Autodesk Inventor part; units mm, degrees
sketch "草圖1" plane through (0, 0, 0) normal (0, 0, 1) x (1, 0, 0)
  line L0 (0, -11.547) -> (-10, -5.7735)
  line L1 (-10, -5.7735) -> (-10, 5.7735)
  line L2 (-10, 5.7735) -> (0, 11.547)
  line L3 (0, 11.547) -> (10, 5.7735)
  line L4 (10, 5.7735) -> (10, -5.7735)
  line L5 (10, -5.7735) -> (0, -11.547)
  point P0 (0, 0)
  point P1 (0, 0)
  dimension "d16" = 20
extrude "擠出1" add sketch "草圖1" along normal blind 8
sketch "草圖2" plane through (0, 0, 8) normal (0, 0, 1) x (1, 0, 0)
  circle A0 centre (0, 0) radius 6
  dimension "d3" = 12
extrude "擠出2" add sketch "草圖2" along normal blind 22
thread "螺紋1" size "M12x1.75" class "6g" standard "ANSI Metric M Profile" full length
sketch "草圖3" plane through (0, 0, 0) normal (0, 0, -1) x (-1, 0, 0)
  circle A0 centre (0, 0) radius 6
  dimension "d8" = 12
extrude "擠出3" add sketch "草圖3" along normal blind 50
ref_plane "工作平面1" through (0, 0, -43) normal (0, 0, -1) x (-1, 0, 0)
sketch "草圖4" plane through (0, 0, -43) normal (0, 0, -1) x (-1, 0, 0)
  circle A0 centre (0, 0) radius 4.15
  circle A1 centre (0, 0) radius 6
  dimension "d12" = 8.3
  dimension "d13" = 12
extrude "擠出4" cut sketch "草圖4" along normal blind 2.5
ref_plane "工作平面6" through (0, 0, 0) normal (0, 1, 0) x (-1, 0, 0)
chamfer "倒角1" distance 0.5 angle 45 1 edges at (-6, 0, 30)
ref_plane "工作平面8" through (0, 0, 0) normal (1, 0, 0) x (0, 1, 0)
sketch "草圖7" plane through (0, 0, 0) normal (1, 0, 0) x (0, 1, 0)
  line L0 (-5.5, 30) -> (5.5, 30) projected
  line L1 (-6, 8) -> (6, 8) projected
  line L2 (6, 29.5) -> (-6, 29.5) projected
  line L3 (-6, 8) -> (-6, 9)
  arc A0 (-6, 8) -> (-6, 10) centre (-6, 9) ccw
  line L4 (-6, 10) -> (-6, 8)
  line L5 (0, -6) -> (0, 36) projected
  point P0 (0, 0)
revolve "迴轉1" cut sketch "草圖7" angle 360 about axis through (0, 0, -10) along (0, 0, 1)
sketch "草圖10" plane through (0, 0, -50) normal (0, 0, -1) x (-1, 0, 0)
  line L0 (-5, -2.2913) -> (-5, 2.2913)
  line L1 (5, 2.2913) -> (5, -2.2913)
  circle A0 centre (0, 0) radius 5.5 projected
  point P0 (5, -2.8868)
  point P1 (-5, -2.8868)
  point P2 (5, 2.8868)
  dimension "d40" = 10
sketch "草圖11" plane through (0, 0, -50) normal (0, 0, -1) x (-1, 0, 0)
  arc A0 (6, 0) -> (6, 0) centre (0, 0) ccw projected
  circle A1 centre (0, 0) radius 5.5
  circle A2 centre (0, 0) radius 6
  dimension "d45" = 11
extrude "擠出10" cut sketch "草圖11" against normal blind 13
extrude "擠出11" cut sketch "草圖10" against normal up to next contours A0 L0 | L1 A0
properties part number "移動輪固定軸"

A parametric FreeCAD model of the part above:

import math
import FreeCAD as App
import Part
import Sketcher
Q = App.Units.Quantity


def edges_at(feature, points):
    """Names of the edges that pass closest to the given points."""
    edges = feature.Shape.Edges
    near = lambda p: min(range(len(edges)), key=lambda i: edges[i].distToShape(Part.Vertex(*p))[0])
    return sorted({f"Edge{near(p) + 1}" for p in points})

doc = App.newDocument("Part")
params = doc.addObject("Spreadsheet::Sheet", "Params")
for row, (alias, value) in enumerate([
    ("pad1_length", "8 mm"),
    ("sketch2_diameter", "12 mm"),
    ("pad2_length", "22 mm"),
    ("sketch3_diameter", "12 mm"),
    ("pad3_length", "50 mm"),
    ("sketch4_diameter", "12 mm"),
    ("sketch4_diameter2", "8.3 mm"),
    ("pocket1_length", "2.5 mm"),
    ("chamfer_size", "0.5 mm"),
    ("sketch5_radius", "1 mm"),
    ("groove_angle", "360 deg"),
    ("sketch6_diameter", "11 mm"),
    ("sketch6_diameter2", "12 mm"),
    ("pocket2_length", "13 mm"),
    ("sketch7_radius", "5.5 mm"),
    ("pocket3_length", "4.5 mm"),
], start=1):
    params.set(f"A{row}", alias)
    params.set(f"B{row}", "=" + value)
    params.setAlias(f"B{row}", alias)

body = doc.addObject("PartDesign::Body", "Body")

# Sketch on XY plane
sketch1 = body.newObject("Sketcher::SketchObject", "Sketch")
sketch1.AttachmentSupport = (doc.getObject("XY_Plane"), [""])
sketch1.MapMode = "FlatFace"
sketch1.addGeometry([
    Part.LineSegment(App.Vector(-10, -5.7735, 0), App.Vector(0, -11.547, 0)),  # 0
    Part.LineSegment(App.Vector(0, -11.547, 0), App.Vector(10, -5.7735, 0)),  # 1
    Part.LineSegment(App.Vector(10, -5.7735, 0), App.Vector(10, 5.7735, 0)),  # 2
    Part.LineSegment(App.Vector(10, 5.7735, 0), App.Vector(0, 11.547, 0)),  # 3
    Part.LineSegment(App.Vector(0, 11.547, 0), App.Vector(-10, 5.7735, 0)),  # 4
    Part.LineSegment(App.Vector(-10, 5.7735, 0), App.Vector(-10, -5.7735, 0)),  # 5
], False)
sketch1.addConstraint([
    Sketcher.Constraint("Coincident", 0, 2, 1, 1),
    Sketcher.Constraint("Coincident", 1, 2, 2, 1),
    Sketcher.Constraint("Coincident", 2, 2, 3, 1),
    Sketcher.Constraint("Coincident", 3, 2, 4, 1),
    Sketcher.Constraint("Coincident", 4, 2, 5, 1),
    Sketcher.Constraint("Coincident", 5, 2, 0, 1),
    Sketcher.Constraint("Vertical", 2),
    Sketcher.Constraint("Vertical", 5),
    Sketcher.Constraint("Symmetric", 0, 2, 3, 2, -1, 1),
    Sketcher.Constraint("Symmetric", 1, 2, 4, 2, -1, 1),
    Sketcher.Constraint("PointOnObject", 0, 2, -2),
    Sketcher.Constraint("Parallel", 0, 3),
    Sketcher.Constraint("Horizontal", 2, 2, 4, 2),
    Sketcher.Constraint("DistanceX", 4, 2, 2, 2, 20.0),
    Sketcher.Constraint("Angle", 0, Q("-30 deg")),
    Sketcher.Constraint("DistanceY", 2, 1, 2, 2, 11.547),
])
pad1 = body.newObject("PartDesign::Pad", "Pad")
pad1.Profile = sketch1
pad1.setExpression("Length", "Params.pad1_length")

# Sketch on XY plane
sketch2 = body.newObject("Sketcher::SketchObject", "Sketch001")
sketch2.AttachmentSupport = (doc.getObject("XY_Plane"), [""])
sketch2.MapMode = "FlatFace"
sketch2.AttachmentOffset = App.Placement(App.Vector(0, 0, 8), App.Rotation())
sketch2.addGeometry(Part.Circle(App.Vector(0, 0, 0), App.Vector(0, 0, 1), 6), False)
sketch2.addConstraint([
    Sketcher.Constraint("Coincident", 0, 3, -1, 1),
    Sketcher.Constraint("Diameter", 0, 12.0),
])
sketch2.setExpression("Constraints[1]", "Params.sketch2_diameter")
pad2 = body.newObject("PartDesign::Pad", "Pad001")
pad2.Profile = sketch2
pad2.setExpression("Length", "Params.pad2_length")

# Sketch on XY plane
sketch3 = body.newObject("Sketcher::SketchObject", "Sketch002")
sketch3.AttachmentSupport = (doc.getObject("XY_Plane"), [""])
sketch3.MapMode = "FlatFace"
sketch3.addGeometry(Part.Circle(App.Vector(0, 0, 0), App.Vector(0, 0, 1), 6), False)
sketch3.addConstraint([
    Sketcher.Constraint("Coincident", 0, 3, -1, 1),
    Sketcher.Constraint("Diameter", 0, 12.0),
])
sketch3.setExpression("Constraints[1]", "Params.sketch3_diameter")
pad3 = body.newObject("PartDesign::Pad", "Pad002")
pad3.Profile = sketch3
pad3.setExpression("Length", "Params.pad3_length")
pad3.Reversed = True

# Sketch on XY plane
sketch4 = body.newObject("Sketcher::SketchObject", "Sketch003")
sketch4.AttachmentSupport = (doc.getObject("XY_Plane"), [""])
sketch4.MapMode = "FlatFace"
sketch4.AttachmentOffset = App.Placement(App.Vector(0, 0, -43), App.Rotation())
sketch4.addGeometry([
    Part.Circle(App.Vector(0, 0, 0), App.Vector(0, 0, 1), 6),
    Part.Circle(App.Vector(0, 0, 0), App.Vector(0, 0, 1), 4.15),
], False)
sketch4.addConstraint([
    Sketcher.Constraint("Coincident", 0, 3, -1, 1),
    Sketcher.Constraint("Coincident", 1, 3, -1, 1),
    Sketcher.Constraint("Diameter", 0, 12.0),
    Sketcher.Constraint("Diameter", 1, 8.3),
])
sketch4.setExpression("Constraints[2]", "Params.sketch4_diameter")
sketch4.setExpression("Constraints[3]", "Params.sketch4_diameter2")
pocket1 = body.newObject("PartDesign::Pocket", "Pocket")
pocket1.Profile = sketch4
pocket1.setExpression("Length", "Params.pocket1_length")
doc.recompute()

chamfer = body.newObject("PartDesign::Chamfer", "Chamfer")
chamfer.Base = (pocket1, edges_at(pocket1, [(-6, 0, 30)]))
chamfer.setExpression("Size", "Params.chamfer_size")

# Sketch on YZ plane
sketch5 = body.newObject("Sketcher::SketchObject", "Sketch004")
sketch5.AttachmentSupport = (doc.getObject("YZ_Plane"), [""])
sketch5.MapMode = "FlatFace"
sketch5.addGeometry([
    Part.LineSegment(App.Vector(-6, 10, 0), App.Vector(-6, 8, 0)),
    Part.ArcOfCircle(Part.Circle(App.Vector(-6, 9, 0), App.Vector(0, 0, 1), 1), math.radians(-90), math.radians(90)),
], False)
sketch5.addConstraint([
    Sketcher.Constraint("Coincident", 0, 1, 1, 2),
    Sketcher.Constraint("Coincident", 1, 1, 0, 2),
    Sketcher.Constraint("Vertical", 0),
    Sketcher.Constraint("Vertical", 1, 3, 0, 1),
    Sketcher.Constraint("Radius", 1, 1.0),
    Sketcher.Constraint("DistanceX", 1, 3, -1, 1, 6.0),
    Sketcher.Constraint("DistanceY", -1, 1, 1, 3, 9.0),
])
sketch5.setExpression("Constraints[4]", "Params.sketch5_radius")
groove = body.newObject("PartDesign::Groove", "Groove")
groove.Profile = sketch5
groove.ReferenceAxis = (sketch5, ["V_Axis"])
groove.setExpression("Angle", "Params.groove_angle")

# Sketch on XY plane
sketch6 = body.newObject("Sketcher::SketchObject", "Sketch005")
sketch6.AttachmentSupport = (doc.getObject("XY_Plane"), [""])
sketch6.MapMode = "FlatFace"
sketch6.AttachmentOffset = App.Placement(App.Vector(0, 0, -50), App.Rotation())
sketch6.addGeometry([
    Part.Circle(App.Vector(0, 0, 0), App.Vector(0, 0, 1), 6),
    Part.Circle(App.Vector(0, 0, 0), App.Vector(0, 0, 1), 5.5),
], False)
sketch6.addConstraint([
    Sketcher.Constraint("Coincident", 0, 3, -1, 1),
    Sketcher.Constraint("Coincident", 1, 3, -1, 1),
    Sketcher.Constraint("Diameter", 1, 11.0),
    Sketcher.Constraint("Diameter", 0, 12.0),
])
sketch6.setExpression("Constraints[2]", "Params.sketch6_diameter")
sketch6.setExpression("Constraints[3]", "Params.sketch6_diameter2")
pocket2 = body.newObject("PartDesign::Pocket", "Pocket001")
pocket2.Profile = sketch6
pocket2.setExpression("Length", "Params.pocket2_length")
pocket2.Reversed = True

# Sketch on XY plane
sketch7 = body.newObject("Sketcher::SketchObject", "Sketch006")
sketch7.AttachmentSupport = (doc.getObject("XY_Plane"), [""])
sketch7.MapMode = "FlatFace"
sketch7.AttachmentOffset = App.Placement(App.Vector(0, 0, -50), App.Rotation())
sketch7.addGeometry([
    Part.ArcOfCircle(Part.Circle(App.Vector(0, 0, 0), App.Vector(0, 0, 1), 5.5), math.radians(-24.620092), math.radians(24.620092)),
    Part.LineSegment(App.Vector(5, 2.2913, 0), App.Vector(5, -2.2913, 0)),
    Part.LineSegment(App.Vector(-5, 2.2913, 0), App.Vector(-5, -2.2913, 0)),
    Part.ArcOfCircle(Part.Circle(App.Vector(0, 0, 0), App.Vector(0, 0, 1), 5.5), math.radians(155.379908), math.radians(204.620092)),
], False)
sketch7.addConstraint([
    Sketcher.Constraint("Coincident", 0, 1, 1, 2),
    Sketcher.Constraint("Coincident", 1, 1, 0, 2),
    Sketcher.Constraint("Coincident", 2, 1, 3, 1),
    Sketcher.Constraint("Coincident", 3, 2, 2, 2),
    Sketcher.Constraint("Vertical", 1),
    Sketcher.Constraint("Vertical", 2),
    Sketcher.Constraint("Coincident", 0, 3, -1, 1),
    Sketcher.Constraint("Coincident", 3, 3, -1, 1),
    Sketcher.Constraint("Equal", 0, 3),
    Sketcher.Constraint("Horizontal", 1, 1, 2, 1),
    Sketcher.Constraint("DistanceX", 2, 1, 1, 1, 10.0),
    Sketcher.Constraint("Radius", 0, 5.5),
])
sketch7.setExpression("Constraints[11]", "Params.sketch7_radius")
pocket3 = body.newObject("PartDesign::Pocket", "Pocket002")
pocket3.Profile = sketch7
pocket3.setExpression("Length", "Params.pocket3_length")
pocket3.Reversed = True

doc.recompute()
